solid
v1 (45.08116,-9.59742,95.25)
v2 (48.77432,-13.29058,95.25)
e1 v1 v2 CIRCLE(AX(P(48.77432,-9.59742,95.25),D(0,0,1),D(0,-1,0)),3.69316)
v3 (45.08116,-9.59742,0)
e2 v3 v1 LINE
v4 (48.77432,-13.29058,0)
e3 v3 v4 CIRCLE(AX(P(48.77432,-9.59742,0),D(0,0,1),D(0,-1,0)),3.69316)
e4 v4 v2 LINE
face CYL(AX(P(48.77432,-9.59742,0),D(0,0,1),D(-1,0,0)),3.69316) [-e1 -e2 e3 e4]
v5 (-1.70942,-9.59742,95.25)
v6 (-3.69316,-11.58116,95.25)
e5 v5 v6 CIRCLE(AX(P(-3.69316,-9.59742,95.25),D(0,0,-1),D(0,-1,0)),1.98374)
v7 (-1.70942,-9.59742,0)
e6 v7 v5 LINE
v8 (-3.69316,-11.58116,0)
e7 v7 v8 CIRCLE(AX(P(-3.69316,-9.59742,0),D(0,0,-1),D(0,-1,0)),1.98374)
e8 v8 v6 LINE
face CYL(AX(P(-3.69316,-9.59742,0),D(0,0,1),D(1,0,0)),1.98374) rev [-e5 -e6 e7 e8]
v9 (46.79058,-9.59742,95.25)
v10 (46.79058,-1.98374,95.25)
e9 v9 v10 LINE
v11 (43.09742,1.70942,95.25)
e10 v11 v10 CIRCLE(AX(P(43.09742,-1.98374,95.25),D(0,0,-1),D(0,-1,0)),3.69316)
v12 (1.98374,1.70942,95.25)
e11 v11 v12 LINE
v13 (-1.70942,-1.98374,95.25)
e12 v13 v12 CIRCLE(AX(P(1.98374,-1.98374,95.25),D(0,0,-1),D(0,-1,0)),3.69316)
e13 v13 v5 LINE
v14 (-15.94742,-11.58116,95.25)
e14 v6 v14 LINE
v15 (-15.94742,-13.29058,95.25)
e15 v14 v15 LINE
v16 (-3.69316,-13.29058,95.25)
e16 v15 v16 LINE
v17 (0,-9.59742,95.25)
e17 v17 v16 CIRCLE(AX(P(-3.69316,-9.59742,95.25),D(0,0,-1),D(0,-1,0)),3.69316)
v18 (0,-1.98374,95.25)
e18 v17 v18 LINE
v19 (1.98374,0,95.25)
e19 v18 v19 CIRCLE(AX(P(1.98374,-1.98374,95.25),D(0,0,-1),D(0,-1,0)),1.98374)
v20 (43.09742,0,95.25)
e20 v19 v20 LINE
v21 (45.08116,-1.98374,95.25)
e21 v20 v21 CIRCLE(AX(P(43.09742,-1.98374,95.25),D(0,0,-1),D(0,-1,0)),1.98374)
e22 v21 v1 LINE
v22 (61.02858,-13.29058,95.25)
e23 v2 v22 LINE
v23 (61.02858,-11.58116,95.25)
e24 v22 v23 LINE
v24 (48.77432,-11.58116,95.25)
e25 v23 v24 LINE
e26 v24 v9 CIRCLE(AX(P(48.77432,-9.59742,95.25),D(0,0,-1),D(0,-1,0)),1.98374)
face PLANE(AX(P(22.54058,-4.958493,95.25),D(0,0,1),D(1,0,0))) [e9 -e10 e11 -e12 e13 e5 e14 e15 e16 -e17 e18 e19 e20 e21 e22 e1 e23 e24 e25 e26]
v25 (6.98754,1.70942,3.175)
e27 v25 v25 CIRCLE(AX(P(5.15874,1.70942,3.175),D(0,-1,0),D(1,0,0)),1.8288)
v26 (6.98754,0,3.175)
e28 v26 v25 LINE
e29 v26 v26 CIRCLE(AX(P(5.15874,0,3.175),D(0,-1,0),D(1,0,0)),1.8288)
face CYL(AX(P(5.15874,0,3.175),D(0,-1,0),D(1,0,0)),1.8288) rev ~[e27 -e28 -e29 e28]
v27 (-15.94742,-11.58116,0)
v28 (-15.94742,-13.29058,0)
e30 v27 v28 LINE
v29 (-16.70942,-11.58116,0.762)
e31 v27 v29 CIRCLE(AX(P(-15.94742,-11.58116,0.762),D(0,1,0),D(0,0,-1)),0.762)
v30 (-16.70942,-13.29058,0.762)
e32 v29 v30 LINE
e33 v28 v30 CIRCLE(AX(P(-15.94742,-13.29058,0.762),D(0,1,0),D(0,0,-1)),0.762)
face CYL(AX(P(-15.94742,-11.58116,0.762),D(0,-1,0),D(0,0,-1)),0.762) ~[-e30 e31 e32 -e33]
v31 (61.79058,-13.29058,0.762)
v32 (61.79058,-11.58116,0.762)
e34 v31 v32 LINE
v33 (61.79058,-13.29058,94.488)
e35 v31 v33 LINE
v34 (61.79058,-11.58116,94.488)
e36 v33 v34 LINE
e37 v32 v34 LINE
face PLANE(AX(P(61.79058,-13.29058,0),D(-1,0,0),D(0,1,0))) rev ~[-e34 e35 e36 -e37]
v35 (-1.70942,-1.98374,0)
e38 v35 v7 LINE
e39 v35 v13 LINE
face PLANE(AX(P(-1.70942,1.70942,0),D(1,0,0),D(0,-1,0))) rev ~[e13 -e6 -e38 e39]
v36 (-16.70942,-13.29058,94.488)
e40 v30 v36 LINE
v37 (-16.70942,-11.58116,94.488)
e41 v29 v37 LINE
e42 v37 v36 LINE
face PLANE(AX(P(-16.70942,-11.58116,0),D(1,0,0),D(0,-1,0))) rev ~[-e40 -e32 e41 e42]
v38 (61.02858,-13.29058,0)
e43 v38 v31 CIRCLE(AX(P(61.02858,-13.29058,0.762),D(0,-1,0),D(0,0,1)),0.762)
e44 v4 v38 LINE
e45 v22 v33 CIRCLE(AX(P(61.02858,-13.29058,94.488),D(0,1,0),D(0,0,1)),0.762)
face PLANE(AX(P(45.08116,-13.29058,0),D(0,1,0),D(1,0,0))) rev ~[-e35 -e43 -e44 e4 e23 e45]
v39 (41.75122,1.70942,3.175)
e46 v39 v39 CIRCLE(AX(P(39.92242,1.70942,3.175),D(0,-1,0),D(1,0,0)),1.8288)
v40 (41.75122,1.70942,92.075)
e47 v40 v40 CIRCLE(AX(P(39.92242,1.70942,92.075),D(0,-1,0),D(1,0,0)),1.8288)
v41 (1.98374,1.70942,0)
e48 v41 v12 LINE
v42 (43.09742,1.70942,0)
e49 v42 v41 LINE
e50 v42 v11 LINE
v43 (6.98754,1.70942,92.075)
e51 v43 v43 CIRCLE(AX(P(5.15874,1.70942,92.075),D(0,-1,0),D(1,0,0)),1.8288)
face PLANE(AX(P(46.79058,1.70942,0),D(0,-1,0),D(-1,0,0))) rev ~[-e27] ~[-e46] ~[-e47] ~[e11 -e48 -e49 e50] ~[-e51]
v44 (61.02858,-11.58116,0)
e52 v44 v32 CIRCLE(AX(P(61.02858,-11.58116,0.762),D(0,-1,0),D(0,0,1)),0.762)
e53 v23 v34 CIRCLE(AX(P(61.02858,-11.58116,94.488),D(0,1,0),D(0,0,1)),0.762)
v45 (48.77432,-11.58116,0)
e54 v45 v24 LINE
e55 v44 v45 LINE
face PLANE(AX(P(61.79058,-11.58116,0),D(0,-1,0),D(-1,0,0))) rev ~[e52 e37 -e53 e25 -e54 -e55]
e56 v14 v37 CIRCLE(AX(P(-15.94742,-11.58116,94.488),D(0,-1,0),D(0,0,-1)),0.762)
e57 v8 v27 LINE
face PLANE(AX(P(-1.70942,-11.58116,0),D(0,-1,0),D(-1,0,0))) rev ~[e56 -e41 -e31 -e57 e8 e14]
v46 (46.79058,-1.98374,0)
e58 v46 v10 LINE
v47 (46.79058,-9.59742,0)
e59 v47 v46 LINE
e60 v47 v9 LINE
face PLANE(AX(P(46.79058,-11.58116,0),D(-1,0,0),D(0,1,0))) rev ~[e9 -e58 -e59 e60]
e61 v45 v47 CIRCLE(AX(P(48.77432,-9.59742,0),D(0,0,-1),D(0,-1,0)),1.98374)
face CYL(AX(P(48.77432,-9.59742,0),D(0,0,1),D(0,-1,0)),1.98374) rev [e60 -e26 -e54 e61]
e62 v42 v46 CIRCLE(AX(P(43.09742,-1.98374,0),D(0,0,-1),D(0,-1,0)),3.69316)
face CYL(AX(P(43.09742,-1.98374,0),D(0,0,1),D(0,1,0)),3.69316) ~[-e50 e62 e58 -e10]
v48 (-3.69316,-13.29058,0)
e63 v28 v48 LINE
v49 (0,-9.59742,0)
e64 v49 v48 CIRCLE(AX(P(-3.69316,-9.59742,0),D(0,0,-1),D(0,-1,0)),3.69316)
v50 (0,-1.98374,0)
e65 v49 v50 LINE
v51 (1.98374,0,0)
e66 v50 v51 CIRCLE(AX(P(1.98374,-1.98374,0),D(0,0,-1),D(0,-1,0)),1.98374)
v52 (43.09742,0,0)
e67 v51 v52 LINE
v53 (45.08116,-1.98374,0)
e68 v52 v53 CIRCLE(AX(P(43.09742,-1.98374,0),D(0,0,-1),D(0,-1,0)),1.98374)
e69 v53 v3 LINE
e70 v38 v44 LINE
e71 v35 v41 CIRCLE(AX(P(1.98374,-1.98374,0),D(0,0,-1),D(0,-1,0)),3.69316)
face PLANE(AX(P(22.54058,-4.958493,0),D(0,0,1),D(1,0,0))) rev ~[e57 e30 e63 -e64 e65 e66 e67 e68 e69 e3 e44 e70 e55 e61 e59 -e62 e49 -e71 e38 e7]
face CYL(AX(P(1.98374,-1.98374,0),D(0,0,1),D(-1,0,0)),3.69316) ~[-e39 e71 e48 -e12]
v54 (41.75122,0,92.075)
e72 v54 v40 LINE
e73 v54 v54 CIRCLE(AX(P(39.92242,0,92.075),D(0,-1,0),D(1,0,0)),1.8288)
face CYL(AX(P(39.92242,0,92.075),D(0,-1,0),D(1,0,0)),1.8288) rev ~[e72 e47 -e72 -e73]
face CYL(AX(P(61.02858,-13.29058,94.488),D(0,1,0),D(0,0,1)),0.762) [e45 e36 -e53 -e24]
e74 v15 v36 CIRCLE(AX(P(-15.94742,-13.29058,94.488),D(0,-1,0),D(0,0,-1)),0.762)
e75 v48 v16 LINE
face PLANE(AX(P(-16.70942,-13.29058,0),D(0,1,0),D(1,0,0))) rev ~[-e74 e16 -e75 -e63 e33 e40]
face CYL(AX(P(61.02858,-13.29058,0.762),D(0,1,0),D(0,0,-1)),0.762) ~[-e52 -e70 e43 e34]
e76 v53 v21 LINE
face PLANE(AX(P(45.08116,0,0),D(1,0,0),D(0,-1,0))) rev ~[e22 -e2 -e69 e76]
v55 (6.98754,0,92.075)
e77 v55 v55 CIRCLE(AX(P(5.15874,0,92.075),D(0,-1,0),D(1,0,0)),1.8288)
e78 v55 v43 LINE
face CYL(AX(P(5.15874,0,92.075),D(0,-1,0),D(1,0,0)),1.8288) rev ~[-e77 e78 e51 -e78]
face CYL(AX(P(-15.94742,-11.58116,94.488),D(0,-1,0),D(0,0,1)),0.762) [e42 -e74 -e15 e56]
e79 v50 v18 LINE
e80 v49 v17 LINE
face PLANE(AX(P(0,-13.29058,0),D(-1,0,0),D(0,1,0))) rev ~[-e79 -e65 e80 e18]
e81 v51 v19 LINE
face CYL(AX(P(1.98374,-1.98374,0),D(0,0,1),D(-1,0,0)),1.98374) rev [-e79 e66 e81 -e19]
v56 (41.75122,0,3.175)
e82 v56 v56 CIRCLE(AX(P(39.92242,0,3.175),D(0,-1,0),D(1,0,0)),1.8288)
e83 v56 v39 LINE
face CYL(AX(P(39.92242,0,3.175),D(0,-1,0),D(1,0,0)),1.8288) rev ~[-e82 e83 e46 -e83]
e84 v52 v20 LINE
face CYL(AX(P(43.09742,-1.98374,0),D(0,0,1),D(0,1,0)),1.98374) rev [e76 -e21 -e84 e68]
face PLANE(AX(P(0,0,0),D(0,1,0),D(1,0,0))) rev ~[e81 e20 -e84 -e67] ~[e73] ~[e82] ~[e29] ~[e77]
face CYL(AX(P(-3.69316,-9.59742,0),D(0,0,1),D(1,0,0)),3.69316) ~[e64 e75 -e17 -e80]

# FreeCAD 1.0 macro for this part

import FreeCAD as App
import Part
import Sketcher

V = App.Vector
Q = App.Units.Quantity


def edges_at(feature, points):
    """Names of the edges that pass closest to the given points."""
    edges = feature.Shape.Edges
    near = lambda p: min(range(len(edges)), key=lambda i: edges[i].distToShape(Part.Vertex(*p))[0])
    return sorted({f"Edge{near(p) + 1}" for p in points})


def add_polygon(sketch, points):
    """Adds a closed chain of lines whose ends are joined by coincident constraints."""
    first, n = sketch.GeometryCount, len(points)
    for a, b in zip(points, points[1:] + points[:1]):
        sketch.addGeometry(Part.LineSegment(App.Vector(*a, 0), App.Vector(*b, 0)), False)
    for i in range(n):
        sketch.addConstraint(Sketcher.Constraint("Coincident", first + i, 2, first + (i + 1) % n, 1))

doc = App.newDocument("Part")
body = doc.addObject("PartDesign::Body", "Body")

sketch1 = doc.addObject("Sketcher::SketchObject", "Sketch")
body.addObject(sketch1)
sketch1.AttachmentSupport = (doc.XY_Plane, [""])
sketch1.MapMode = "FlatFace"
add_polygon(sketch1, [(0, -13.29058), (0, 0), (45.08116, 0), (45.08116, -13.29058), (61.79058, -13.29058), (61.79058, -11.58116), (46.79058, -11.58116), (46.79058, 1.70942), (-1.70942, 1.70942), (-1.70942, -11.58116), (-16.70942, -11.58116), (-16.70942, -13.29058)])
sketch1.addConstraint([
    Sketcher.Constraint("Vertical", 0),
    Sketcher.Constraint("Horizontal", 1),
    Sketcher.Constraint("Vertical", 2),
    Sketcher.Constraint("Horizontal", 3),
    Sketcher.Constraint("Vertical", 4),
    Sketcher.Constraint("Horizontal", 5),
    Sketcher.Constraint("Vertical", 6),
    Sketcher.Constraint("Horizontal", 7),
    Sketcher.Constraint("Vertical", 8),
    Sketcher.Constraint("Horizontal", 9),
    Sketcher.Constraint("Vertical", 10),
    Sketcher.Constraint("Horizontal", 11),
    Sketcher.Constraint("Coincident", 0, 2, -1, 1),
    Sketcher.Constraint("Horizontal", 5, 2, 8, 2),
    Sketcher.Constraint("Horizontal", 3, 2, 10, 2),
    Sketcher.Constraint("Equal", 5, 9),
    Sketcher.Constraint("Equal", 3, 11),
    Sketcher.Constraint("Equal", 2, 6),
    Sketcher.Constraint("DistanceY", 4, 1, 4, 2, Q("0.0673 in")),
    Sketcher.Constraint("DistanceX", 5, 2, 5, 1, 15.0),
    Sketcher.Constraint("DistanceX", 7, 2, 7, 1, 48.5),
    Sketcher.Constraint("DistanceX", -1, 1, 3, 2, Q("2.4327 in")),
    Sketcher.Constraint("DistanceY", 0, 1, 0, 2, 13.29058),
])
pad1 = doc.addObject("PartDesign::Pad", "Pad")
body.addObject(pad1)
pad1.Profile = sketch1
pad1.Length = Q("3.75 in")
doc.recompute()

fillet = doc.addObject("PartDesign::Fillet", "Fillet")
body.addObject(fillet)
fillet.Base = (pad1, edges_at(pad1, [
    (0, 0, 47.625),
    (-1.709, -11.581, 47.625),
    (45.081, 0, 47.625),
    (46.791, -11.581, 47.625),
]))
fillet.Radius = Q("0.0781 in")
doc.recompute()

fillet2 = doc.addObject("PartDesign::Fillet", "Fillet001")
body.addObject(fillet2)
fillet2.Base = (fillet, edges_at(fillet, [
    (0, -13.291, 47.625),
    (-1.709, 1.709, 47.625),
    (46.791, 1.709, 47.625),
    (45.081, -13.291, 47.625),
]))
fillet2.Radius = Q("0.1454 in")
doc.recompute()

fillet3 = doc.addObject("PartDesign::Fillet", "Fillet002")
body.addObject(fillet3)
fillet3.Base = (fillet2, edges_at(fillet2, [
    (-16.709, -12.436, 0),
    (-16.709, -12.436, 95.25),
    (61.791, -12.436, 0),
    (61.791, -12.436, 95.25),
]))
fillet3.Radius = Q("0.03 in")

sketch2 = doc.addObject("Sketcher::SketchObject", "Sketch001")
body.addObject(sketch2)
sketch2.AttachmentSupport = (doc.XZ_Plane, [""])
sketch2.MapMode = "FlatFace"
sketch2.addGeometry([
    Part.Circle(V(5.15874, 92.075, 0), V(0, 0, 1), 1.8288),
    Part.Circle(V(5.15874, 3.175, 0), V(0, 0, 1), 1.8288),
    Part.Circle(V(39.92242, 92.075, 0), V(0, 0, 1), 1.8288),
    Part.Circle(V(39.92242, 3.175, 0), V(0, 0, 1), 1.8288),
], False)
sketch2.addConstraint([
    Sketcher.Constraint("Equal", 0, 1),
    Sketcher.Constraint("Equal", 1, 2),
    Sketcher.Constraint("Equal", 2, 3),
    Sketcher.Constraint("Horizontal", 0, 3, 2, 3),
    Sketcher.Constraint("Horizontal", 1, 3, 3, 3),
    Sketcher.Constraint("Vertical", 0, 3, 1, 3),
    Sketcher.Constraint("Vertical", 2, 3, 3, 3),
    Sketcher.Constraint("Diameter", 0, Q("0.144 in")),
    Sketcher.Constraint("DistanceY", 1, 3, 0, 3, Q("3.5 in")),
    Sketcher.Constraint("DistanceY", -1, 1, 0, 3, Q("3.625 in")),
    Sketcher.Constraint("DistanceX", -1, 1, 0, 3, Q("0.2031 in")),
    Sketcher.Constraint("DistanceX", -1, 1, 2, 3, 39.92242),
])
pocket1 = doc.addObject("PartDesign::Pocket", "Pocket")
body.addObject(pocket1)
pocket1.Profile = sketch2
pocket1.Type = "ThroughAll"

doc.recompute()
